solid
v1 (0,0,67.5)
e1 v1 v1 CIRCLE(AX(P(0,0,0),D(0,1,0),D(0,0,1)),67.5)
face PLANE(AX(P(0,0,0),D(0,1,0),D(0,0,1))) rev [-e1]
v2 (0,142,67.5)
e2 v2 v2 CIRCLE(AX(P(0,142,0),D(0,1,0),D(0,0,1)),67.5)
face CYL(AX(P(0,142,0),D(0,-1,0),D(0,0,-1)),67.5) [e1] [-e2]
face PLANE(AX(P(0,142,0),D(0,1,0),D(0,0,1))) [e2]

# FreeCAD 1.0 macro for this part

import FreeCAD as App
import Part
import Sketcher
Q = App.Units.Quantity

doc = App.newDocument("Part")
params = doc.addObject("Spreadsheet::Sheet", "Params")
for row, (alias, value) in enumerate([
    ("sketch1_diameter", "135 mm"),
    ("pad1_length", "142 mm"),
], start=1):
    params.set(f"A{row}", alias)
    params.set(f"B{row}", "=" + value)
    params.setAlias(f"B{row}", alias)

body = doc.addObject("PartDesign::Body", "Body")

# Sketch on XZ plane
sketch1 = body.newObject("Sketcher::SketchObject", "Sketch")
sketch1.AttachmentSupport = (doc.getObject("XZ_Plane"), [""])
sketch1.MapMode = "FlatFace"
sketch1.addGeometry(Part.Circle(App.Vector(0, 0, 0), App.Vector(0, 0, 1), 68), False)
sketch1.addConstraint(Sketcher.Constraint("Coincident", 0, 3, -1, 1))
sketch1.addConstraint(Sketcher.Constraint("Diameter", 0, Q("135 mm")))
sketch1.setExpression("Constraints[1]", "Params.sketch1_diameter")
pad1 = body.newObject("PartDesign::Pad", "Pad")
pad1.Profile = sketch1
pad1.setExpression("Length", "Params.pad1_length")
pad1.Reversed = True

doc.recompute()
